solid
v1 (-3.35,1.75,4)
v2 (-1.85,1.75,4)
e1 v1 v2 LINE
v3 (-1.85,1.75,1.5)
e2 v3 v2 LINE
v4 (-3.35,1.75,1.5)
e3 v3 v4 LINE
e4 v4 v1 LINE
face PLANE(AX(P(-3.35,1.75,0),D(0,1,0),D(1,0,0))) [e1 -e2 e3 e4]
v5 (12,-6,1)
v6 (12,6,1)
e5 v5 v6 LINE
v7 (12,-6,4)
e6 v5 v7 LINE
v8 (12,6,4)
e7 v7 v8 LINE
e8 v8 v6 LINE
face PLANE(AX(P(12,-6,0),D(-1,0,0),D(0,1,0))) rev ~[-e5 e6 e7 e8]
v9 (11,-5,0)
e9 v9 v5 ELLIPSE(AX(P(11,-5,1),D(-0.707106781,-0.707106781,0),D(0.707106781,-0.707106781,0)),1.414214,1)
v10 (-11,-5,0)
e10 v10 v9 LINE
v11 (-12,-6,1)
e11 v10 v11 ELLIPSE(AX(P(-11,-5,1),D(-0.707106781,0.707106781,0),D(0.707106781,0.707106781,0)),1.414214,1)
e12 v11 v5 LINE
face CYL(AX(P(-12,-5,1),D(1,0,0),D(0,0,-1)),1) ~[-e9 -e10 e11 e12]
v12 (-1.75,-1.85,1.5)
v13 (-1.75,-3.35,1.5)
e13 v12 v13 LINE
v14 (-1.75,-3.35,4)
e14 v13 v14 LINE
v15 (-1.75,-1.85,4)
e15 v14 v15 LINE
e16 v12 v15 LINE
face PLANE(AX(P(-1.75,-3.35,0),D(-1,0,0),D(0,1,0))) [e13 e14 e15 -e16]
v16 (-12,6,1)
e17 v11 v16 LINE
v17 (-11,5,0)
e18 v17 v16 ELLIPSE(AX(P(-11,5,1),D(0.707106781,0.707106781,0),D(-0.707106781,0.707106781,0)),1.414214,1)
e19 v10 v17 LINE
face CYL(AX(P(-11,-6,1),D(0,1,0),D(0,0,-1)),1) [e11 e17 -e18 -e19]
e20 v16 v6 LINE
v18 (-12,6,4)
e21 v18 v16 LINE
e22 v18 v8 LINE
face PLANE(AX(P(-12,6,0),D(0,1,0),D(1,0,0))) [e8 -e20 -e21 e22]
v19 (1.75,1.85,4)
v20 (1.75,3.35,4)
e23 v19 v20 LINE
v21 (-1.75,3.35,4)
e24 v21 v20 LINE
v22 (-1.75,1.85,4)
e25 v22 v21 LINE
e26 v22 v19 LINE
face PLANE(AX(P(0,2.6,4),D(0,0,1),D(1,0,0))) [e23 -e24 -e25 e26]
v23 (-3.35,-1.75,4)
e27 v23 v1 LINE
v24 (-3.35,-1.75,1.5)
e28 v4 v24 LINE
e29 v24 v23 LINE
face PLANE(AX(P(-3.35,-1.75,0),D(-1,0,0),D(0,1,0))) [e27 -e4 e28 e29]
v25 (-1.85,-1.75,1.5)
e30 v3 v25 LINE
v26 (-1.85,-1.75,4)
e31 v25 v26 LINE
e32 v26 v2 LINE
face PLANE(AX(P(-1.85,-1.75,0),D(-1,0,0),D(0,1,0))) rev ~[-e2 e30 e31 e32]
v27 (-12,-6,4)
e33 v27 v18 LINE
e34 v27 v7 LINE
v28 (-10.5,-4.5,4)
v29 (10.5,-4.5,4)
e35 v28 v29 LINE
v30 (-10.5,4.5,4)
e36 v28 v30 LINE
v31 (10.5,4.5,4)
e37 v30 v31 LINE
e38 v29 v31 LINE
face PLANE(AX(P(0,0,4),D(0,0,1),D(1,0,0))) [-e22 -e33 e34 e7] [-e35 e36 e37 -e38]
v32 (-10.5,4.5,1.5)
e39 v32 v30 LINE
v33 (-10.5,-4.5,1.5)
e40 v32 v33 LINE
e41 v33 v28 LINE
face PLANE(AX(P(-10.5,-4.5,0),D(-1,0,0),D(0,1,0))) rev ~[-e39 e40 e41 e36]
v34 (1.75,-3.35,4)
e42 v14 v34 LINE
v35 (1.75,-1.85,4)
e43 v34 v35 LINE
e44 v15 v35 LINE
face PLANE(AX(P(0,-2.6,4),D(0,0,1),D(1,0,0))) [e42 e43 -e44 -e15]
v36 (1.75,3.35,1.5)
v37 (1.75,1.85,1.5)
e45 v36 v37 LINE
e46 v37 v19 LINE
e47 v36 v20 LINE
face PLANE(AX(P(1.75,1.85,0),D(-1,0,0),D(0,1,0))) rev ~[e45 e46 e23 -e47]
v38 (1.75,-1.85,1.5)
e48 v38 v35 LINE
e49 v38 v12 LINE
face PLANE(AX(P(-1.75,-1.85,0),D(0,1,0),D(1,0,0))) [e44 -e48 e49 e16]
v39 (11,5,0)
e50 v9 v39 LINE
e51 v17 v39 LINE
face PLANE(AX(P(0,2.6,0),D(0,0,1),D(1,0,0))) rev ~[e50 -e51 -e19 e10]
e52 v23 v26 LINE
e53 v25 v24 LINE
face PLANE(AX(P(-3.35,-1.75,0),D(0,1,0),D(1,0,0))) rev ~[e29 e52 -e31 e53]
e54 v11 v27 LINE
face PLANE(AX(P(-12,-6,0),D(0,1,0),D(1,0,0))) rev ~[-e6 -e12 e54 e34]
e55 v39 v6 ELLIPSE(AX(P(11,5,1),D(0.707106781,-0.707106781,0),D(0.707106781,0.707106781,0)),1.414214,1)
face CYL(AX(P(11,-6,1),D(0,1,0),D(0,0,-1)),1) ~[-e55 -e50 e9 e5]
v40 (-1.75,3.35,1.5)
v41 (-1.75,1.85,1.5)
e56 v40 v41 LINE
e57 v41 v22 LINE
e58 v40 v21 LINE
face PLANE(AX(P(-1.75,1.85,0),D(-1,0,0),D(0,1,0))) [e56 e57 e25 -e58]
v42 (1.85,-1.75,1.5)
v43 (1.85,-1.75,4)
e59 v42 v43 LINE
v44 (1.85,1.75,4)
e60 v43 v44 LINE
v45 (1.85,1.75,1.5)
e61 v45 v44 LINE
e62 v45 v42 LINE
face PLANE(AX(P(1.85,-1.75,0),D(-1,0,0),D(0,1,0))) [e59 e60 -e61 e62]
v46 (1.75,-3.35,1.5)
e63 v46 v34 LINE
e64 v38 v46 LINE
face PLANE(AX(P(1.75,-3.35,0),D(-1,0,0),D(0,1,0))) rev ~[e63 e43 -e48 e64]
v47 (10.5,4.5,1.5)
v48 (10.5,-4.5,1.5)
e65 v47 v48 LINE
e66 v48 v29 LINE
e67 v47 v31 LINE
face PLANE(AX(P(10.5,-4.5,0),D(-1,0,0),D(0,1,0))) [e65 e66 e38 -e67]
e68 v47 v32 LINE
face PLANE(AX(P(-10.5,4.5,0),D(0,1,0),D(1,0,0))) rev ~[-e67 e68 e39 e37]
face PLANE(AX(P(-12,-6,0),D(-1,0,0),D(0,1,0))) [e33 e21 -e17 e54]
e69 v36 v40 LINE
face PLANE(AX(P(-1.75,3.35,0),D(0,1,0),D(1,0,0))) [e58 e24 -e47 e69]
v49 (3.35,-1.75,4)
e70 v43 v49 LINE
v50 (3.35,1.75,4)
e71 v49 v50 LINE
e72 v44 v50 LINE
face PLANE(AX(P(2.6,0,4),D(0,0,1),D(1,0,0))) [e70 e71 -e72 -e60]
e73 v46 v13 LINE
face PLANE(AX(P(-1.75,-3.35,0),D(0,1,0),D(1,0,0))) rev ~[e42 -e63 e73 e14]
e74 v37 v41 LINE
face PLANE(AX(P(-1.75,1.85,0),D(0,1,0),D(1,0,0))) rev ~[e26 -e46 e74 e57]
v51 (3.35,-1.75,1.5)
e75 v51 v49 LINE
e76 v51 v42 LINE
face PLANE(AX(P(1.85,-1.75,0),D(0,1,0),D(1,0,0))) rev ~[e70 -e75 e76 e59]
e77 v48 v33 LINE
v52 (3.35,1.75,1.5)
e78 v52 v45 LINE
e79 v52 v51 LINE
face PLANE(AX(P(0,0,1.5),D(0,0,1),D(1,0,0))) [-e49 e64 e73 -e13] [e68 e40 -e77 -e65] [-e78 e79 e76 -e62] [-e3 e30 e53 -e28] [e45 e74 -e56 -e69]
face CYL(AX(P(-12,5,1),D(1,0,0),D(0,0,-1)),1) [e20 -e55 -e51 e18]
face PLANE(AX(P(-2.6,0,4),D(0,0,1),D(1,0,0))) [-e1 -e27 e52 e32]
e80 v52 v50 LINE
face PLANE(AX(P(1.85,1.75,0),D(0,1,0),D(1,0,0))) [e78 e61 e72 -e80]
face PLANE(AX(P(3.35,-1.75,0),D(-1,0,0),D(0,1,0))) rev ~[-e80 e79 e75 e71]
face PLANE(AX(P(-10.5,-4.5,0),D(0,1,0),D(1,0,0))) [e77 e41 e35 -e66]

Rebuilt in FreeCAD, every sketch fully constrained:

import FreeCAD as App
import Part
import Sketcher
from FreeCAD import Vector
Q = App.Units.Quantity


def edges_at(feature, points):
    """Names of the edges that pass closest to the given points."""
    edges = feature.Shape.Edges
    near = lambda p: min(range(len(edges)), key=lambda i: edges[i].distToShape(Part.Vertex(*p))[0])
    return sorted({f"Edge{near(p) + 1}" for p in points})

doc = App.newDocument("Part")
body = doc.addObject("PartDesign::Body", "Body")

sketch1 = body.newObject("Sketcher::SketchObject", "Sketch")
sketch1.AttachmentSupport = (doc.getObject("XY_Plane"), [""])
sketch1.MapMode = "FlatFace"
sketch1.addGeometry(Part.LineSegment(Vector(-12, 6, 0), Vector(-12, -6, 0)), False)
sketch1.addGeometry(Part.LineSegment(Vector(-12, -6, 0), Vector(12, -6, 0)), False)
sketch1.addGeometry(Part.LineSegment(Vector(12, -6, 0), Vector(12, 6, 0)), False)
sketch1.addGeometry(Part.LineSegment(Vector(12, 6, 0), Vector(-12, 6, 0)), False)
sketch1.addConstraint(Sketcher.Constraint("Coincident", 0, 2, 1, 1))
sketch1.addConstraint(Sketcher.Constraint("Coincident", 1, 2, 2, 1))
sketch1.addConstraint(Sketcher.Constraint("Coincident", 2, 2, 3, 1))
sketch1.addConstraint(Sketcher.Constraint("Coincident", 3, 2, 0, 1))
sketch1.addConstraint(Sketcher.Constraint("Vertical", 0))
sketch1.addConstraint(Sketcher.Constraint("Horizontal", 1))
sketch1.addConstraint(Sketcher.Constraint("Vertical", 2))
sketch1.addConstraint(Sketcher.Constraint("Horizontal", 3))
sketch1.addConstraint(Sketcher.Constraint("Symmetric", 0, 2, 2, 2, -1, 1))
sketch1.addConstraint(Sketcher.Constraint("DistanceX", 1, 1, 1, 2, Q("24 mm")))
sketch1.addConstraint(Sketcher.Constraint("DistanceY", 0, 2, 0, 1, Q("12 mm")))
pad1 = body.newObject("PartDesign::Pad", "Pad")
pad1.Profile = sketch1
pad1.Length = 1.5

sketch2 = body.newObject("Sketcher::SketchObject", "Sketch001")
sketch2.AttachmentSupport = (doc.getObject("XY_Plane"), [""])
sketch2.MapMode = "FlatFace"
sketch2.addGeometry(Part.LineSegment(Vector(-1.8, 3.4, 0), Vector(-1.8, 1.9, 0)), False)
sketch2.addGeometry(Part.LineSegment(Vector(-1.8, 1.9, 0), Vector(1.8, 1.9, 0)), False)
sketch2.addGeometry(Part.LineSegment(Vector(1.8, 1.9, 0), Vector(1.8, 3.4, 0)), False)
sketch2.addGeometry(Part.LineSegment(Vector(1.8, 3.4, 0), Vector(-1.8, 3.4, 0)), False)
sketch2.addGeometry(Part.LineSegment(Vector(-1.8, -1.9, 0), Vector(-1.8, -3.4, 0)), False)
sketch2.addGeometry(Part.LineSegment(Vector(-1.8, -3.4, 0), Vector(1.8, -3.4, 0)), False)
sketch2.addGeometry(Part.LineSegment(Vector(1.8, -3.4, 0), Vector(1.8, -1.9, 0)), False)
sketch2.addGeometry(Part.LineSegment(Vector(1.8, -1.9, 0), Vector(-1.8, -1.9, 0)), False)
sketch2.addGeometry(Part.LineSegment(Vector(-3.4, 1.8, 0), Vector(-3.4, -1.8, 0)), False)
sketch2.addGeometry(Part.LineSegment(Vector(-3.4, -1.8, 0), Vector(-1.9, -1.8, 0)), False)
sketch2.addGeometry(Part.LineSegment(Vector(-1.9, -1.8, 0), Vector(-1.9, 1.8, 0)), False)
sketch2.addGeometry(Part.LineSegment(Vector(-1.9, 1.8, 0), Vector(-3.4, 1.8, 0)), False)
sketch2.addGeometry(Part.LineSegment(Vector(1.9, 1.8, 0), Vector(1.9, -1.8, 0)), False)
sketch2.addGeometry(Part.LineSegment(Vector(1.9, -1.8, 0), Vector(3.4, -1.8, 0)), False)
sketch2.addGeometry(Part.LineSegment(Vector(3.4, -1.8, 0), Vector(3.4, 1.8, 0)), False)
sketch2.addGeometry(Part.LineSegment(Vector(3.4, 1.8, 0), Vector(1.9, 1.8, 0)), False)
sketch2.addConstraint(Sketcher.Constraint("Coincident", 0, 2, 1, 1))
sketch2.addConstraint(Sketcher.Constraint("Coincident", 1, 2, 2, 1))
sketch2.addConstraint(Sketcher.Constraint("Coincident", 2, 2, 3, 1))
sketch2.addConstraint(Sketcher.Constraint("Coincident", 3, 2, 0, 1))
sketch2.addConstraint(Sketcher.Constraint("Coincident", 4, 2, 5, 1))
sketch2.addConstraint(Sketcher.Constraint("Coincident", 5, 2, 6, 1))
sketch2.addConstraint(Sketcher.Constraint("Coincident", 6, 2, 7, 1))
sketch2.addConstraint(Sketcher.Constraint("Coincident", 7, 2, 4, 1))
sketch2.addConstraint(Sketcher.Constraint("Coincident", 8, 2, 9, 1))
sketch2.addConstraint(Sketcher.Constraint("Coincident", 9, 2, 10, 1))
sketch2.addConstraint(Sketcher.Constraint("Coincident", 10, 2, 11, 1))
sketch2.addConstraint(Sketcher.Constraint("Coincident", 11, 2, 8, 1))
sketch2.addConstraint(Sketcher.Constraint("Coincident", 12, 2, 13, 1))
sketch2.addConstraint(Sketcher.Constraint("Coincident", 13, 2, 14, 1))
sketch2.addConstraint(Sketcher.Constraint("Coincident", 14, 2, 15, 1))
sketch2.addConstraint(Sketcher.Constraint("Coincident", 15, 2, 12, 1))
sketch2.addConstraint(Sketcher.Constraint("Vertical", 0))
sketch2.addConstraint(Sketcher.Constraint("Horizontal", 1))
sketch2.addConstraint(Sketcher.Constraint("Vertical", 2))
sketch2.addConstraint(Sketcher.Constraint("Horizontal", 3))
sketch2.addConstraint(Sketcher.Constraint("Vertical", 4))
sketch2.addConstraint(Sketcher.Constraint("Horizontal", 5))
sketch2.addConstraint(Sketcher.Constraint("Vertical", 6))
sketch2.addConstraint(Sketcher.Constraint("Horizontal", 7))
sketch2.addConstraint(Sketcher.Constraint("Vertical", 8))
sketch2.addConstraint(Sketcher.Constraint("Horizontal", 9))
sketch2.addConstraint(Sketcher.Constraint("Vertical", 10))
sketch2.addConstraint(Sketcher.Constraint("Horizontal", 11))
sketch2.addConstraint(Sketcher.Constraint("Vertical", 12))
sketch2.addConstraint(Sketcher.Constraint("Horizontal", 13))
sketch2.addConstraint(Sketcher.Constraint("Vertical", 14))
sketch2.addConstraint(Sketcher.Constraint("Horizontal", 15))
sketch2.addConstraint(Sketcher.Constraint("Symmetric", 2, 2, 4, 2, -1, 1))
sketch2.addConstraint(Sketcher.Constraint("Symmetric", 0, 2, 6, 2, -1, 1))
sketch2.addConstraint(Sketcher.Constraint("Symmetric", 10, 2, 12, 2, -1, 1))
sketch2.addConstraint(Sketcher.Constraint("Symmetric", 8, 2, 14, 2, -1, 1))
sketch2.addConstraint(Sketcher.Constraint("Horizontal", 9, 2, 12, 2))
sketch2.addConstraint(Sketcher.Constraint("Vertical", 3, 2, 4, 2))
sketch2.addConstraint(Sketcher.Constraint("Equal", 15, 0))
sketch2.addConstraint(Sketcher.Constraint("Equal", 7, 8))
sketch2.addConstraint(Sketcher.Constraint("DistanceX", 1, 1, 1, 2, Q("3.5 mm")))
sketch2.addConstraint(Sketcher.Constraint("DistanceX", 9, 1, 9, 2, Q("1.5 mm")))
sketch2.addConstraint(Sketcher.Constraint("DistanceY", 4, 2, 0, 2, Q("5.2 mm")))
sketch2.addConstraint(Sketcher.Constraint("DistanceX", 8, 2, 7, 2, Q("1.6 mm")))
pad2 = body.newObject("PartDesign::Pad", "Pad001")
pad2.Profile = sketch2
pad2.Length = 4

sketch3 = body.newObject("Sketcher::SketchObject", "Sketch002")
sketch3.AttachmentSupport = (doc.getObject("XY_Plane"), [""])
sketch3.MapMode = "FlatFace"
sketch3.addGeometry(Part.LineSegment(Vector(-12, 6, 0), Vector(-12, -6, 0)), False)
sketch3.addGeometry(Part.LineSegment(Vector(-12, -6, 0), Vector(12, -6, 0)), False)
sketch3.addGeometry(Part.LineSegment(Vector(12, -6, 0), Vector(12, 6, 0)), False)
sketch3.addGeometry(Part.LineSegment(Vector(12, 6, 0), Vector(-12, 6, 0)), False)
sketch3.addGeometry(Part.LineSegment(Vector(10, -4, 0), Vector(-10, -4, 0)), False)
sketch3.addGeometry(Part.LineSegment(Vector(-10, -4, 0), Vector(-10, 4, 0)), False)
sketch3.addGeometry(Part.LineSegment(Vector(-10, 4, 0), Vector(10, 4, 0)), False)
sketch3.addGeometry(Part.LineSegment(Vector(10, 4, 0), Vector(10, -4, 0)), False)
sketch3.addConstraint(Sketcher.Constraint("Coincident", 0, 2, 1, 1))
sketch3.addConstraint(Sketcher.Constraint("Coincident", 1, 2, 2, 1))
sketch3.addConstraint(Sketcher.Constraint("Coincident", 2, 2, 3, 1))
sketch3.addConstraint(Sketcher.Constraint("Coincident", 3, 2, 0, 1))
sketch3.addConstraint(Sketcher.Constraint("Coincident", 4, 2, 5, 1))
sketch3.addConstraint(Sketcher.Constraint("Coincident", 5, 2, 6, 1))
sketch3.addConstraint(Sketcher.Constraint("Coincident", 6, 2, 7, 1))
sketch3.addConstraint(Sketcher.Constraint("Coincident", 7, 2, 4, 1))
sketch3.addConstraint(Sketcher.Constraint("Vertical", 0))
sketch3.addConstraint(Sketcher.Constraint("Horizontal", 1))
sketch3.addConstraint(Sketcher.Constraint("Vertical", 2))
sketch3.addConstraint(Sketcher.Constraint("Horizontal", 3))
sketch3.addConstraint(Sketcher.Constraint("Horizontal", 4))
sketch3.addConstraint(Sketcher.Constraint("Vertical", 5))
sketch3.addConstraint(Sketcher.Constraint("Horizontal", 6))
sketch3.addConstraint(Sketcher.Constraint("Vertical", 7))
sketch3.addConstraint(Sketcher.Constraint("Symmetric", 0, 2, 2, 2, -1, 1))
sketch3.addConstraint(Sketcher.Constraint("Symmetric", 4, 2, 6, 2, -1, 1))
sketch3.addConstraint(Sketcher.Constraint("DistanceX", 1, 1, 1, 2, Q("24 mm")))
sketch3.addConstraint(Sketcher.Constraint("DistanceX", 4, 2, 4, 1, Q("21 mm")))
sketch3.addConstraint(Sketcher.Constraint("DistanceY", 0, 2, 0, 1, Q("12 mm")))
sketch3.addConstraint(Sketcher.Constraint("DistanceY", 5, 1, 5, 2, Q("9 mm")))
pad3 = body.newObject("PartDesign::Pad", "Pad002")
pad3.Profile = sketch3
pad3.Length = 4
doc.recompute()

fillet = body.newObject("PartDesign::Fillet", "Fillet")
fillet.Base = (pad3, edges_at(pad3, [
    (-12, 0, 0),
    (0, -6, 0),
    (12, 0, 0),
    (0, 6, 0),
]))
fillet.Radius = 1

doc.recompute()
